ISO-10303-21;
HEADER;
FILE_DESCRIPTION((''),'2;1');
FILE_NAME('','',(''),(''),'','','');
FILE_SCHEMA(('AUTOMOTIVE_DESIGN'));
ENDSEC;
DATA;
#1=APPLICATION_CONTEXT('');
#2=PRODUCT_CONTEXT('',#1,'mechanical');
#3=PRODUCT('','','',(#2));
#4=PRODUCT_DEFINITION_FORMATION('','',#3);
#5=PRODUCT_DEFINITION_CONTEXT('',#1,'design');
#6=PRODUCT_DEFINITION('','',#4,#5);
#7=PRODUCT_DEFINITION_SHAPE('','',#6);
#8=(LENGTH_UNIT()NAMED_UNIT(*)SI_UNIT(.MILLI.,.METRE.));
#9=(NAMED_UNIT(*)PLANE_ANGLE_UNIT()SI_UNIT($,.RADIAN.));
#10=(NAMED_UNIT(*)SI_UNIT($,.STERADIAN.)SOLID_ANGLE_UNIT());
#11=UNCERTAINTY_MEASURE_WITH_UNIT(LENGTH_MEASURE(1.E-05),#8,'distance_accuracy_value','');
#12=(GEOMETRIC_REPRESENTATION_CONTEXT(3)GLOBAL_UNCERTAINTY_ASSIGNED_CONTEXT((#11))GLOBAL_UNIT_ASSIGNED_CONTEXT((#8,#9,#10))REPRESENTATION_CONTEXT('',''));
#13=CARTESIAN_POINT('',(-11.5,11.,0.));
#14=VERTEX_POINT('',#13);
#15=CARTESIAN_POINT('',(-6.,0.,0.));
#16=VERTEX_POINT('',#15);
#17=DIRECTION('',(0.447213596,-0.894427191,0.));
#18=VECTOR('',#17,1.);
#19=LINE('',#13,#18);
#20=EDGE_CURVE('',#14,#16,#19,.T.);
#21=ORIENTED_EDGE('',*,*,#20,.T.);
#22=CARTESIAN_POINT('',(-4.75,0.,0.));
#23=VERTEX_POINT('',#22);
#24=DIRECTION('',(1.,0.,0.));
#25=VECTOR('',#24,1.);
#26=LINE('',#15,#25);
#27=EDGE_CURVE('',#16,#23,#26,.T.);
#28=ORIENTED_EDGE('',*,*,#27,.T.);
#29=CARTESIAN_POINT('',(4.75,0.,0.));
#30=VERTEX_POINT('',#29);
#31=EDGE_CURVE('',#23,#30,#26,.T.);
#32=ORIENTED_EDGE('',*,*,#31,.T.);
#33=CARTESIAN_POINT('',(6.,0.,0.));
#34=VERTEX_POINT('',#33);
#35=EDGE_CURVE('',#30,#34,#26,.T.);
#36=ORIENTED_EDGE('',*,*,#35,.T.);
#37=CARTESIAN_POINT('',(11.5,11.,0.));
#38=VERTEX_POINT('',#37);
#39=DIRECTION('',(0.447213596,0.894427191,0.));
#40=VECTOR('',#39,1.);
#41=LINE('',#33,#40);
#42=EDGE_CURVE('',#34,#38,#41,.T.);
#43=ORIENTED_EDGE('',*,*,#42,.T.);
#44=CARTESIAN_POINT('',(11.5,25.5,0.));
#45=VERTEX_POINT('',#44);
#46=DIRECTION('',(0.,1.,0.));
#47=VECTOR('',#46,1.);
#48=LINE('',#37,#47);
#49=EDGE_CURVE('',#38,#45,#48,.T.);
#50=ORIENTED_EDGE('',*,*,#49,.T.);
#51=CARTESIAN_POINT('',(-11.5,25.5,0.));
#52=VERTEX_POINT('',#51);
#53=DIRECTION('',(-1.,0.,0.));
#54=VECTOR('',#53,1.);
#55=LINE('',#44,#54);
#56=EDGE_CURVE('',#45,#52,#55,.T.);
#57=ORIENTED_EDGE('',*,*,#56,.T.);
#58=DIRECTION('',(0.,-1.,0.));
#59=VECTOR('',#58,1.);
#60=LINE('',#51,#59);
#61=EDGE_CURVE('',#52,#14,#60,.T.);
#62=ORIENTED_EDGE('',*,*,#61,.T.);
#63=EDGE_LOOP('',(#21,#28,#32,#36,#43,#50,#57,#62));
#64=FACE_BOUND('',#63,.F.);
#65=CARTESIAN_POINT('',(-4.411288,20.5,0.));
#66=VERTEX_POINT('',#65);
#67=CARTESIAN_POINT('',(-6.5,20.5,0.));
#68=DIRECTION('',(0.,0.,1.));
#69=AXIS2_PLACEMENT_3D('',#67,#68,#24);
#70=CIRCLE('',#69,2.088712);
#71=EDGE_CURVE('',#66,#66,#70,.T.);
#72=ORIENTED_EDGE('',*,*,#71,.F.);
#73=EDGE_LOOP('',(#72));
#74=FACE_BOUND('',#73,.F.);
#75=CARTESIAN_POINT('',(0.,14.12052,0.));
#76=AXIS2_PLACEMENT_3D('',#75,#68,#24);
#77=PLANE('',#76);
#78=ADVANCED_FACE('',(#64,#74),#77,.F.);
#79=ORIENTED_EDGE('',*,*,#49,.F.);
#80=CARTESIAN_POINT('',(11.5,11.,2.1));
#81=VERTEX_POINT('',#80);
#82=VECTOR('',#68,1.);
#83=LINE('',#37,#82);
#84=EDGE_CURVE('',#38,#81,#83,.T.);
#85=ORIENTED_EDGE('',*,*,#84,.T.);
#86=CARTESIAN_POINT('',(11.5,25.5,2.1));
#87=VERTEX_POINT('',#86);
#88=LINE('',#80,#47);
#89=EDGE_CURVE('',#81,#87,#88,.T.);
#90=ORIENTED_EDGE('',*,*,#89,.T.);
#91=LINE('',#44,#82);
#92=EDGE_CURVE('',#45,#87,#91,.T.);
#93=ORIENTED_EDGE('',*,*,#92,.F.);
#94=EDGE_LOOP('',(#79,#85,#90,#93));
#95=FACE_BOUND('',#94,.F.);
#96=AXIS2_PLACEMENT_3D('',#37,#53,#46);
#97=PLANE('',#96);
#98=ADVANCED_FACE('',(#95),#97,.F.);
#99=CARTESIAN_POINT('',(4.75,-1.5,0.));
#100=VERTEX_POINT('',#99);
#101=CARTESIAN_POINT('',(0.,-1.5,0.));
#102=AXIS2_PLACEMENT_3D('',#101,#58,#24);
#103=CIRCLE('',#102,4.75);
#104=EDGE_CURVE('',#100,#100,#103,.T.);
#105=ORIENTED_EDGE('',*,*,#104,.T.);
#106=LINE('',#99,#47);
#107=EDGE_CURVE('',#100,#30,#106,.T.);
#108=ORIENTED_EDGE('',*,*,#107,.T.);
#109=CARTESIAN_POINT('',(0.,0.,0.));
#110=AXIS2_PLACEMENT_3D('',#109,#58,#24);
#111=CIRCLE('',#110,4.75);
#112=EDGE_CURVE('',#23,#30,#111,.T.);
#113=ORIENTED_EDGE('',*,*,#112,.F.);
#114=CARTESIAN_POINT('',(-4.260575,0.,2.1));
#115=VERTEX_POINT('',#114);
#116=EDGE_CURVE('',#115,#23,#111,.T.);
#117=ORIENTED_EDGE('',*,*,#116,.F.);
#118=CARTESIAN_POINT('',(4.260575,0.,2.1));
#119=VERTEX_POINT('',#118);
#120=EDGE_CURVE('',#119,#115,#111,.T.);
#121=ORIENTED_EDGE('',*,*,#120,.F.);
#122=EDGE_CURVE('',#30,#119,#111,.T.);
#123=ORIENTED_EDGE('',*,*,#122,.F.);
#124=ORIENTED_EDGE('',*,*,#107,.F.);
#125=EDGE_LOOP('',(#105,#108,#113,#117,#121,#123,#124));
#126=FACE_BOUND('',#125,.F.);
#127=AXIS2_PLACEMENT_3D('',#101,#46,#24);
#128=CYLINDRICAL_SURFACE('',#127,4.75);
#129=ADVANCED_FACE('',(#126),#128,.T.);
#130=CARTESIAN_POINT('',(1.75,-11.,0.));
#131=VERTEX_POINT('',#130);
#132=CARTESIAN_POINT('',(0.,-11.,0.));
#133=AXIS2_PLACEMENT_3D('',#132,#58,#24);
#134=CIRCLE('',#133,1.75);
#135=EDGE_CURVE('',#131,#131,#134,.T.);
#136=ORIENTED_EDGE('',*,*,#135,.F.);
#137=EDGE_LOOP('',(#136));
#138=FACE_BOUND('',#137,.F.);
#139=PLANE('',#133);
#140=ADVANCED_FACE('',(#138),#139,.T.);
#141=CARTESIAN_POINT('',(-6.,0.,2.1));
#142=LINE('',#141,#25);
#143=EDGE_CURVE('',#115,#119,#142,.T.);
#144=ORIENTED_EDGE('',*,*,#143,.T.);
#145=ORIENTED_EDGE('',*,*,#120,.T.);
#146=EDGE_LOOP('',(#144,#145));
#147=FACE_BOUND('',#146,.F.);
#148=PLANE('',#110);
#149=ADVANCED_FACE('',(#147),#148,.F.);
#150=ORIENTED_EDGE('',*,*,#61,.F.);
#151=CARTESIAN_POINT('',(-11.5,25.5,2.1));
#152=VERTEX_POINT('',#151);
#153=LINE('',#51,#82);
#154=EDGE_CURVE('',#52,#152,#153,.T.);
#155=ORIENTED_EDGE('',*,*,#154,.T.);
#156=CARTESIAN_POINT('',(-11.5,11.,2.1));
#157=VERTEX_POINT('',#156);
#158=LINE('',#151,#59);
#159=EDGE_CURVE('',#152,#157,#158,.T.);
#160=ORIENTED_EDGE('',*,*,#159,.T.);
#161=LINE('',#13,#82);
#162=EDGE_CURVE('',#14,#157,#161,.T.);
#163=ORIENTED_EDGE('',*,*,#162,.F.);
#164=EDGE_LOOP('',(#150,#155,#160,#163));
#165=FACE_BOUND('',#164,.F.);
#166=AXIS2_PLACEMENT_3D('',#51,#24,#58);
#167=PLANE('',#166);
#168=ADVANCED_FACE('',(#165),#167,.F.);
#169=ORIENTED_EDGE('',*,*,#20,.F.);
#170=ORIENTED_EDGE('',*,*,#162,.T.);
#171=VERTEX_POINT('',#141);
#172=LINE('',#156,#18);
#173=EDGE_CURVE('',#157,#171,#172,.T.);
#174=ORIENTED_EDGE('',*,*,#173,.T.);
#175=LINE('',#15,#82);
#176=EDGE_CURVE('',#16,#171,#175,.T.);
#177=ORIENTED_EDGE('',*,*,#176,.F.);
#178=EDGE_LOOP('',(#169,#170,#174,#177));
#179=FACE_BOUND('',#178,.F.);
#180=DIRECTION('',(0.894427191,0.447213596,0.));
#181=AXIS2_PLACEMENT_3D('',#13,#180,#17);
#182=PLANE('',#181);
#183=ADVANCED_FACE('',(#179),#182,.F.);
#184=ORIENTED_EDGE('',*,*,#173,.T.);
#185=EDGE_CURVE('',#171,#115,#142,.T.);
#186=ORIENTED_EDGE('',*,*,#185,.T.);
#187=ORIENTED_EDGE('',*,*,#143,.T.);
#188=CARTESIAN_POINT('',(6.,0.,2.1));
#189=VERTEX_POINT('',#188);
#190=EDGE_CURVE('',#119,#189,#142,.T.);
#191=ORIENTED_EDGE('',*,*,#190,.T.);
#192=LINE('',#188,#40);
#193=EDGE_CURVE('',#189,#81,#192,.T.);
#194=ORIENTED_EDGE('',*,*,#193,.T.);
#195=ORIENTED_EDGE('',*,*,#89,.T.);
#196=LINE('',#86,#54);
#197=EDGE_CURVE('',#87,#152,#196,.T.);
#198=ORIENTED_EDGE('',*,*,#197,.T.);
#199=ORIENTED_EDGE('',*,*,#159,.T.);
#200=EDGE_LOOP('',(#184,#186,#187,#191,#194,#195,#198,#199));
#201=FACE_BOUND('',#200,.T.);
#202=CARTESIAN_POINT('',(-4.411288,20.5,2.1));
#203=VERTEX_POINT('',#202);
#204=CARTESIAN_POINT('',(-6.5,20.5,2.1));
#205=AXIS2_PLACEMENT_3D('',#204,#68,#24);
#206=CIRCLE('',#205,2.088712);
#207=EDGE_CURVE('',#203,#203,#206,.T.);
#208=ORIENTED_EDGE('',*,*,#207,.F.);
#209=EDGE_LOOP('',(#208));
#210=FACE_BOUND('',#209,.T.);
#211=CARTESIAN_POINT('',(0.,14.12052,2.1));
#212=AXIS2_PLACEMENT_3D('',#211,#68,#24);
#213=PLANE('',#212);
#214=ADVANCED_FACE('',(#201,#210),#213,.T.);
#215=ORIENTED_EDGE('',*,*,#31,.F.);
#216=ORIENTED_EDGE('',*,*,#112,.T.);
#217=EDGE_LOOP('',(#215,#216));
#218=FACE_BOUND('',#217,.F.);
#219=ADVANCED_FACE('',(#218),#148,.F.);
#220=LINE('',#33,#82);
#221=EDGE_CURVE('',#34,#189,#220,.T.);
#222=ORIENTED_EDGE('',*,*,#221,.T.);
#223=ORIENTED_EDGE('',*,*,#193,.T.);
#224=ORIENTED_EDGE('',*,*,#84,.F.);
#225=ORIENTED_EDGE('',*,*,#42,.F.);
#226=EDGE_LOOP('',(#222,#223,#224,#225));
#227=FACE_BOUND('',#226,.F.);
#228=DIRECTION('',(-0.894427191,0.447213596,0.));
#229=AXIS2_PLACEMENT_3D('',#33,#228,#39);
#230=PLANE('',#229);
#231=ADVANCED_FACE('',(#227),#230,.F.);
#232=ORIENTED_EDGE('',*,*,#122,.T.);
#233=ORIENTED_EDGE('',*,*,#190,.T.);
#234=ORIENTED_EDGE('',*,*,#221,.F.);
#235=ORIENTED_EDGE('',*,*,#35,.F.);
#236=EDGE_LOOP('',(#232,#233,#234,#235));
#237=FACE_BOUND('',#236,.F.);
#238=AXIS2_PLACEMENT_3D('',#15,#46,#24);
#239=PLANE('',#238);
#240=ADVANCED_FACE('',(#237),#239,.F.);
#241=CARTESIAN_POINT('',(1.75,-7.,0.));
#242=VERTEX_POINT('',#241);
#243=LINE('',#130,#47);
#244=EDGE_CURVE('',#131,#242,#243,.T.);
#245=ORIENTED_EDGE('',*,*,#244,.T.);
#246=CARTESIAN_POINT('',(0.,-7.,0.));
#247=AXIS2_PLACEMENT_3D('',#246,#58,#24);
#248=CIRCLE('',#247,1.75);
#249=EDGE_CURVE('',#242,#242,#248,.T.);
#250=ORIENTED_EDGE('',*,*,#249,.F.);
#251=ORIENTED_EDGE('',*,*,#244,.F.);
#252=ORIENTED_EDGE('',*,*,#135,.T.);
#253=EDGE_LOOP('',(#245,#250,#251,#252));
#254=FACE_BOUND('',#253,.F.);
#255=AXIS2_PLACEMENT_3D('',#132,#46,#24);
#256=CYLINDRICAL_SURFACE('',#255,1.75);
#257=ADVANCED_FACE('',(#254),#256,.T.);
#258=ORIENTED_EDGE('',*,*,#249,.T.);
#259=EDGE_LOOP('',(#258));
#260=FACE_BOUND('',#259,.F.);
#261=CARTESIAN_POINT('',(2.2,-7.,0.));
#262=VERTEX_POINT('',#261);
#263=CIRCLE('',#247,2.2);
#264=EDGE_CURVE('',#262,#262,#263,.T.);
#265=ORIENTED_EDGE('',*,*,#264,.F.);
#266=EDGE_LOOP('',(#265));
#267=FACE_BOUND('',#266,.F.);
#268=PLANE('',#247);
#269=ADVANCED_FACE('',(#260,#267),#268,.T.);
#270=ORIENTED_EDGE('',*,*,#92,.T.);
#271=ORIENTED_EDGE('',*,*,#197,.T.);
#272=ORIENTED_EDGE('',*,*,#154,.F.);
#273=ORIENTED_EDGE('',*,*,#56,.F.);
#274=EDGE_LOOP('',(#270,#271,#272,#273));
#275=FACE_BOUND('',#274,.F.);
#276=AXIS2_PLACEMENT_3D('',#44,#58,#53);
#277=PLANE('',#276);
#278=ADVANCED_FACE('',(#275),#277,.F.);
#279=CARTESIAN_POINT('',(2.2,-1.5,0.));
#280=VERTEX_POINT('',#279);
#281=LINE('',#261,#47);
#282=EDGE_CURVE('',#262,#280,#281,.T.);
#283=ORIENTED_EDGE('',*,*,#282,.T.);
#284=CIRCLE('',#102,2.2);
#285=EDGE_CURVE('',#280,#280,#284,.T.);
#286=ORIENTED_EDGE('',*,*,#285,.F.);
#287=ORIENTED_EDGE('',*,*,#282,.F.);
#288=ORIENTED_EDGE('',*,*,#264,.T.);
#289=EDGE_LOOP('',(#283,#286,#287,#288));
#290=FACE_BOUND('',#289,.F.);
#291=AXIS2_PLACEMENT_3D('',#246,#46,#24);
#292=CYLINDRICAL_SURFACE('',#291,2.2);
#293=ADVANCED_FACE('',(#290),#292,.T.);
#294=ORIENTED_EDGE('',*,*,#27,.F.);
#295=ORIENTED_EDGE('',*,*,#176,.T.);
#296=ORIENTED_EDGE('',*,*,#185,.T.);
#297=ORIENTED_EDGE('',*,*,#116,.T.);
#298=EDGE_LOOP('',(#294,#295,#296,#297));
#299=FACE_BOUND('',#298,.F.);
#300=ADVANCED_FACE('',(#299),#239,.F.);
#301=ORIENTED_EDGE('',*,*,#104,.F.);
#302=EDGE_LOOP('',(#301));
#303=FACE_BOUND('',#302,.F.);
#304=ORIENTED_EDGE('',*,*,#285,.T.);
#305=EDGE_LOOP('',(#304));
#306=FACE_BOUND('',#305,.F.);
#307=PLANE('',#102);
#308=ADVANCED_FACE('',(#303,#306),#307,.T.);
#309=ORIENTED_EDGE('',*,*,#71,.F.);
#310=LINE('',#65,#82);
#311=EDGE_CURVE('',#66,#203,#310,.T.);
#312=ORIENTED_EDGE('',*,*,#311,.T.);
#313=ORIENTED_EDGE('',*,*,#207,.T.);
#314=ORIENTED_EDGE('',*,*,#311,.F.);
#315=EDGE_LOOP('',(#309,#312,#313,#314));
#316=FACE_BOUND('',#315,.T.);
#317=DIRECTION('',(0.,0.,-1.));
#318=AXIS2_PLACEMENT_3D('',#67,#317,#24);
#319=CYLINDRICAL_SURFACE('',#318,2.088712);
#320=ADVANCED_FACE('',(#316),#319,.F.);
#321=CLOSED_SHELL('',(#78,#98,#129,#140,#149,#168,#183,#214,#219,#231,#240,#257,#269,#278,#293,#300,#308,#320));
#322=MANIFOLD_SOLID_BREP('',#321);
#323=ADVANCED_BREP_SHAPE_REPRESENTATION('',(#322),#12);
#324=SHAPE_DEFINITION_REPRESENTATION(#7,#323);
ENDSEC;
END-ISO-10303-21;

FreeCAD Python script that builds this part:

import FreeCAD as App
import Part
import Sketcher

V = App.Vector


def add_polygon(sketch, points):
    """Adds a closed chain of lines whose ends are joined by coincident constraints."""
    first, n = sketch.GeometryCount, len(points)
    for a, b in zip(points, points[1:] + points[:1]):
        sketch.addGeometry(Part.LineSegment(App.Vector(*a, 0), App.Vector(*b, 0)), False)
    for i in range(n):
        sketch.addConstraint(Sketcher.Constraint("Coincident", first + i, 2, first + (i + 1) % n, 1))

doc = App.newDocument("Part")
params = doc.addObject("Spreadsheet::Sheet", "Params")
for row, (alias, value) in enumerate([
    ("sketch1_width", "12 mm"),
    ("sketch1_width2", "23 mm"),
    ("sketch1_height", "14.5 mm"),
    ("pad1_length", "2.1 mm"),
    ("sketch2_height", "11 mm"),
    ("sketch2_height2", "4 mm"),
    ("sketch2_height3", "5.5 mm"),
    ("sketch2_width", "4.75 mm"),
    ("sketch2_width2", "0.45 mm"),
    ("revolution_angle", "360 deg"),
], start=1):
    params.set(f"A{row}", alias)
    params.set(f"B{row}", "=" + value)
    params.setAlias(f"B{row}", alias)

body = doc.addObject("PartDesign::Body", "Body")

# Sketch on XY plane
sketch1 = body.newObject("Sketcher::SketchObject", "Sketch")
sketch1.AttachmentSupport = (doc.getObject("XY_Plane"), [""])
sketch1.MapMode = "FlatFace"
add_polygon(sketch1, [(-11.5, 11), (-6, 0), (6, 0), (11.5, 11), (11.5, 25.5), (-11.5, 25.5)])  # lines 0-5
sketch1.addGeometry(Part.Circle(V(-6.5, 20.5, 0), V(0, 0, 1), 2.1), False)  # 6
sketch1.addConstraint(Sketcher.Constraint("Horizontal", 1))
sketch1.addConstraint(Sketcher.Constraint("Vertical", 3))
sketch1.addConstraint(Sketcher.Constraint("Horizontal", 4))
sketch1.addConstraint(Sketcher.Constraint("Vertical", 5))
sketch1.addConstraint(Sketcher.Constraint("Symmetric", 0, 2, 1, 2, -1, 1))
sketch1.addConstraint(Sketcher.Constraint("Symmetric", 2, 2, 5, 2, -2))
sketch1.addConstraint(Sketcher.Constraint("DistanceX", 1, 1, 1, 2, 12.0))
sketch1.addConstraint(Sketcher.Constraint("DistanceX", 4, 2, 4, 1, 23.0))
sketch1.addConstraint(Sketcher.Constraint("DistanceY", 3, 1, 3, 2, 14.5))
sketch1.addConstraint(Sketcher.Constraint("DistanceY", -1, 1, 2, 2, 11.0))
sketch1.addConstraint(Sketcher.Constraint("DistanceX", 6, 3, 2, 2, 18.0))
sketch1.addConstraint(Sketcher.Constraint("DistanceY", 6, 3, 3, 2, 5.0))
sketch1.addConstraint(Sketcher.Constraint("Diameter", 6, 4.177424))
sketch1.setExpression("Constraints[12]", "Params.sketch1_width")
sketch1.setExpression("Constraints[13]", "Params.sketch1_width2")
sketch1.setExpression("Constraints[14]", "Params.sketch1_height")
pad1 = body.newObject("PartDesign::Pad", "Pad")
pad1.Profile = sketch1
pad1.setExpression("Length", "Params.pad1_length")

# Sketch on XY plane
sketch2 = body.newObject("Sketcher::SketchObject", "Sketch001")
sketch2.AttachmentSupport = (doc.getObject("XY_Plane"), [""])
sketch2.MapMode = "FlatFace"
add_polygon(sketch2, [(4.75, 0), (0, 0), (0, -11), (1.75, -11), (1.75, -7), (2.2, -7), (2.2, -1.5), (4.75, -1.5)])  # lines 0-7
sketch2.addConstraint(Sketcher.Constraint("Horizontal", 0))
sketch2.addConstraint(Sketcher.Constraint("Vertical", 1))
sketch2.addConstraint(Sketcher.Constraint("Horizontal", 2))
sketch2.addConstraint(Sketcher.Constraint("Vertical", 3))
sketch2.addConstraint(Sketcher.Constraint("Horizontal", 4))
sketch2.addConstraint(Sketcher.Constraint("Vertical", 5))
sketch2.addConstraint(Sketcher.Constraint("Horizontal", 6))
sketch2.addConstraint(Sketcher.Constraint("Vertical", 7))
sketch2.addConstraint(Sketcher.Constraint("Coincident", 0, 2, -1, 1))
sketch2.addConstraint(Sketcher.Constraint("DistanceY", 1, 2, 1, 1, 11.0))
sketch2.addConstraint(Sketcher.Constraint("DistanceY", 3, 1, 3, 2, 4.0))
sketch2.addConstraint(Sketcher.Constraint("DistanceY", 5, 1, 5, 2, 5.5))
sketch2.addConstraint(Sketcher.Constraint("DistanceX", 3, 2, 6, 2, 3.0))
sketch2.addConstraint(Sketcher.Constraint("DistanceX", 0, 2, 0, 1, 4.75))
sketch2.addConstraint(Sketcher.Constraint("DistanceX", 4, 1, 4, 2, 0.45))
sketch2.setExpression("Constraints[17]", "Params.sketch2_height")
sketch2.setExpression("Constraints[18]", "Params.sketch2_height2")
sketch2.setExpression("Constraints[19]", "Params.sketch2_height3")
sketch2.setExpression("Constraints[21]", "Params.sketch2_width")
sketch2.setExpression("Constraints[22]", "Params.sketch2_width2")
revolution = body.newObject("PartDesign::Revolution", "Revolution")
revolution.Profile = sketch2
revolution.ReferenceAxis = (sketch2, ["V_Axis"])
revolution.setExpression("Angle", "Params.revolution_angle")

doc.recompute()
